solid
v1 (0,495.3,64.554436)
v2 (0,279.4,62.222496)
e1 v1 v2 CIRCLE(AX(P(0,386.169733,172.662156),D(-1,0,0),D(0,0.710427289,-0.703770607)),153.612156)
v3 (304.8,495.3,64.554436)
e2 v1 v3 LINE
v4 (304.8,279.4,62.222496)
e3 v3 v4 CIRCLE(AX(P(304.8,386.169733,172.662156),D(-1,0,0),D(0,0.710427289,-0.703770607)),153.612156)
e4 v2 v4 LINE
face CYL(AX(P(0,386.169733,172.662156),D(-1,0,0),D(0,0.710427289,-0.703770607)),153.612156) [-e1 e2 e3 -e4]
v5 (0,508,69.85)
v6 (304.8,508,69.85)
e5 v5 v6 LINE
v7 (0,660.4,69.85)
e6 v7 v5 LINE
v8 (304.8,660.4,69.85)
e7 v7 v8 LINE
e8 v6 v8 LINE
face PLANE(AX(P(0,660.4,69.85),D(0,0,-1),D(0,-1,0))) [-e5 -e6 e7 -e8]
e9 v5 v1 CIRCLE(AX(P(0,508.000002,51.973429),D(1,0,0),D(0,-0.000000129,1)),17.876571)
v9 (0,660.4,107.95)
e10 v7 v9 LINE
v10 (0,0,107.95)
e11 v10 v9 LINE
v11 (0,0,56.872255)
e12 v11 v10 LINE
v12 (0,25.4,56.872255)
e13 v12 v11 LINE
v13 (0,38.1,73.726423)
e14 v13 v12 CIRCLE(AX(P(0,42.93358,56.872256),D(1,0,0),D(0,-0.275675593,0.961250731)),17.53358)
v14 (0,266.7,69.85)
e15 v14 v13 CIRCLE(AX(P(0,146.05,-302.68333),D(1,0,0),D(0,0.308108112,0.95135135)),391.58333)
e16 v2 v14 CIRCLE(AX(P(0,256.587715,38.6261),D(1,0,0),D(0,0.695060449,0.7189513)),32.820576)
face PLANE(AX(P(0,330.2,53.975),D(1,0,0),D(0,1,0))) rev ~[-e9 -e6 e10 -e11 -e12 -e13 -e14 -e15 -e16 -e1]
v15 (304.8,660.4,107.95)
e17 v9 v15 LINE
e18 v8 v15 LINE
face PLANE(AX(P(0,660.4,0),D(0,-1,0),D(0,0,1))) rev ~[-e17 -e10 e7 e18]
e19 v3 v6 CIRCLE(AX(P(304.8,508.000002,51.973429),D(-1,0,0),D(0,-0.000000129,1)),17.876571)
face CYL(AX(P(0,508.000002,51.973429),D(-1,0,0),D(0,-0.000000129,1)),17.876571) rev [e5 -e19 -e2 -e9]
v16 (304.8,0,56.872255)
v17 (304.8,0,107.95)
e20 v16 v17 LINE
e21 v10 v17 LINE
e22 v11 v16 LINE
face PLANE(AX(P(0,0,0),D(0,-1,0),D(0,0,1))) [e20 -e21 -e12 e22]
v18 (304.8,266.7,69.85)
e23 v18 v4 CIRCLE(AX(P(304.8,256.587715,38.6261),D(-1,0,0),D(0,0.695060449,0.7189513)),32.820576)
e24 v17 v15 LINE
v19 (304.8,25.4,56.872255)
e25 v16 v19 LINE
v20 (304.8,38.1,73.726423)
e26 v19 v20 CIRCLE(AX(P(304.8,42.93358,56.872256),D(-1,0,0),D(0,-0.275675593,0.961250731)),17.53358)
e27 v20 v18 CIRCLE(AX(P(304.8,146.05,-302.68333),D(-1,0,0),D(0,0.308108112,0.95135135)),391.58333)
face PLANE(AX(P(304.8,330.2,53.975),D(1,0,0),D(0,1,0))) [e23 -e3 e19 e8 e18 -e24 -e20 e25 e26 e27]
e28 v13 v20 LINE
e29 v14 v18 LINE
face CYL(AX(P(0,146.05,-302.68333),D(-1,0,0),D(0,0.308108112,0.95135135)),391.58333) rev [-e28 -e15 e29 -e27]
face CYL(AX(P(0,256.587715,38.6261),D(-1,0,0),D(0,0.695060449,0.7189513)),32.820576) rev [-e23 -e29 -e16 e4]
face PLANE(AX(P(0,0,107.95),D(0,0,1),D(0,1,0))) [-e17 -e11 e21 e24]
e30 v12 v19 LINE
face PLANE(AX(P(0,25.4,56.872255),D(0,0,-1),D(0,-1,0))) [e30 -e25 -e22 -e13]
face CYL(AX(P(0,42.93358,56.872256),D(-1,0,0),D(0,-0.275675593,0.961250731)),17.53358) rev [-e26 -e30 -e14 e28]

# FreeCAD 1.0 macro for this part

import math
import FreeCAD as App
import Part
import Sketcher
from FreeCAD import Vector
Q = App.Units.Quantity

doc = App.newDocument("Part")
body = doc.addObject("PartDesign::Body", "Body")

# Sketch on YZ plane
sketch1 = body.newObject("Sketcher::SketchObject", "Sketch")
sketch1.AttachmentSupport = (doc.getObject("YZ_Plane"), [""])
sketch1.MapMode = "FlatFace"
sketch1.addGeometry([
    Part.LineSegment(Vector(0, 107.95, 0), Vector(0, 0, 0)),
    Part.LineSegment(Vector(0, 0, 0), Vector(660.4, 0, 0)),
    Part.LineSegment(Vector(660.4, 0, 0), Vector(660.4, 107.95, 0)),
    Part.LineSegment(Vector(660.4, 107.95, 0), Vector(0, 107.95, 0)),
], False)
sketch1.addConstraint([
    Sketcher.Constraint("Coincident", 0, 2, 1, 1),
    Sketcher.Constraint("Coincident", 1, 2, 2, 1),
    Sketcher.Constraint("Coincident", 2, 2, 3, 1),
    Sketcher.Constraint("Coincident", 3, 2, 0, 1),
    Sketcher.Constraint("Vertical", 0),
    Sketcher.Constraint("Horizontal", 1),
    Sketcher.Constraint("Vertical", 2),
    Sketcher.Constraint("Horizontal", 3),
    Sketcher.Constraint("Coincident", 0, 2, -1, 1),
    Sketcher.Constraint("DistanceX", 1, 1, 1, 2, Q("26 in")),
    Sketcher.Constraint("DistanceY", 0, 2, 0, 1, Q("4.25 in")),
])
pad1 = body.newObject("PartDesign::Pad", "Pad")
pad1.Profile = sketch1
pad1.Length = Q("12 in")

# Sketch on YZ plane
sketch2 = body.newObject("Sketcher::SketchObject", "Sketch001")
sketch2.AttachmentSupport = (doc.getObject("YZ_Plane"), [""])
sketch2.MapMode = "FlatFace"
sketch2.addGeometry([
    Part.LineSegment(Vector(0, 0, 0), Vector(660.4, 0, 0)),  # 0
    Part.LineSegment(Vector(660.4, 0, 0), Vector(660.4, 69.85, 0)),  # 1
    Part.LineSegment(Vector(660.4, 69.85, 0), Vector(508, 69.85, 0)),  # 2
    Part.ArcOfCircle(Part.Circle(Vector(508.000002, 51.973429, 0), Vector(0, 0, 1), 17.876571), math.radians(90.000007), math.radians(135.269683)),  # 3
    Part.ArcOfCircle(Part.Circle(Vector(386.169733, 172.662156, 0), Vector(0, 0, 1), 153.612156), math.radians(-134.032034), math.radians(-44.730309)),  # 4
    Part.ArcOfCircle(Part.Circle(Vector(256.587715, 38.6261, 0), Vector(0, 0, 1), 32.820576), math.radians(45.967966), math.radians(72.054749)),  # 5
    Part.ArcOfCircle(Part.Circle(Vector(146.05, -302.68333, 0), Vector(0, 0, 1), 391.58333), math.radians(72.054747), math.radians(106.002284)),  # 6
    Part.ArcOfCircle(Part.Circle(Vector(42.93358, 56.872256, 0), Vector(0, 0, 1), 17.53358), math.radians(106.002279), math.radians(180.000004)),  # 7
    Part.LineSegment(Vector(25.4, 56.872255, 0), Vector(0, 56.872255, 0)),  # 8
    Part.LineSegment(Vector(0, 56.872255, 0), Vector(0, 0, 0)),  # 9
], False)
sketch2.addConstraint([
    Sketcher.Constraint("Coincident", 0, 2, 1, 1),
    Sketcher.Constraint("Coincident", 1, 2, 2, 1),
    Sketcher.Constraint("Coincident", 2, 2, 3, 1),
    Sketcher.Constraint("Coincident", 3, 2, 4, 2),
    Sketcher.Constraint("Coincident", 4, 1, 5, 1),
    Sketcher.Constraint("Coincident", 5, 2, 6, 1),
    Sketcher.Constraint("Coincident", 6, 2, 7, 1),
    Sketcher.Constraint("Coincident", 7, 2, 8, 1),
    Sketcher.Constraint("Coincident", 8, 2, 9, 1),
    Sketcher.Constraint("Coincident", 9, 2, 0, 1),
    Sketcher.Constraint("Horizontal", 0),
    Sketcher.Constraint("Vertical", 1),
    Sketcher.Constraint("Horizontal", 2),
    Sketcher.Constraint("Horizontal", 8),
    Sketcher.Constraint("Vertical", 9),
    Sketcher.Constraint("Coincident", 9, 2, -1, 1),
    Sketcher.Constraint("DistanceX", 0, 1, 0, 2, Q("26 in")),
    Sketcher.Constraint("DistanceX", 2, 2, 2, 1, Q("6 in")),
    Sketcher.Constraint("DistanceX", 8, 2, 8, 1, Q("1 in")),
    Sketcher.Constraint("DistanceX", -1, 1, 3, 3, Q("20.0000001 in")),
    Sketcher.Constraint("DistanceX", -1, 1, 4, 1, Q("11 in")),
    Sketcher.Constraint("DistanceX", 5, 2, 3, 2, Q("9 in")),
    Sketcher.Constraint("DistanceX", 6, 2, 5, 2, Q("9 in")),
    Sketcher.Constraint("DistanceY", 1, 1, 1, 2, Q("2.75 in")),
    Sketcher.Constraint("DistanceX", -1, 1, 3, 2, Q("19.5 in")),
    Sketcher.Constraint("DistanceX", -1, 1, 6, 3, Q("5.75 in")),
    Sketcher.Constraint("DistanceY", -1, 1, 5, 2, Q("2.75 in")),
    Sketcher.Constraint("Radius", 3, Q("17.876571 mm")),
    Sketcher.Constraint("Radius", 6, Q("391.58333 mm")),
    Sketcher.Constraint("Radius", 7, Q("17.53358 mm")),
    Sketcher.Constraint("Radius", 4, Q("153.612156 mm")),
    Sketcher.Constraint("Radius", 5, Q("32.820576 mm")),
    Sketcher.Constraint("DistanceY", -1, 1, 5, 3, Q("38.6261 mm")),
    Sketcher.Constraint("DistanceY", 9, 2, 9, 1, Q("56.872255 mm")),
])
pocket1 = body.newObject("PartDesign::Pocket", "Pocket")
pocket1.Profile = sketch2
pocket1.Type = "ThroughAll"
pocket1.Reversed = True

doc.recompute()
